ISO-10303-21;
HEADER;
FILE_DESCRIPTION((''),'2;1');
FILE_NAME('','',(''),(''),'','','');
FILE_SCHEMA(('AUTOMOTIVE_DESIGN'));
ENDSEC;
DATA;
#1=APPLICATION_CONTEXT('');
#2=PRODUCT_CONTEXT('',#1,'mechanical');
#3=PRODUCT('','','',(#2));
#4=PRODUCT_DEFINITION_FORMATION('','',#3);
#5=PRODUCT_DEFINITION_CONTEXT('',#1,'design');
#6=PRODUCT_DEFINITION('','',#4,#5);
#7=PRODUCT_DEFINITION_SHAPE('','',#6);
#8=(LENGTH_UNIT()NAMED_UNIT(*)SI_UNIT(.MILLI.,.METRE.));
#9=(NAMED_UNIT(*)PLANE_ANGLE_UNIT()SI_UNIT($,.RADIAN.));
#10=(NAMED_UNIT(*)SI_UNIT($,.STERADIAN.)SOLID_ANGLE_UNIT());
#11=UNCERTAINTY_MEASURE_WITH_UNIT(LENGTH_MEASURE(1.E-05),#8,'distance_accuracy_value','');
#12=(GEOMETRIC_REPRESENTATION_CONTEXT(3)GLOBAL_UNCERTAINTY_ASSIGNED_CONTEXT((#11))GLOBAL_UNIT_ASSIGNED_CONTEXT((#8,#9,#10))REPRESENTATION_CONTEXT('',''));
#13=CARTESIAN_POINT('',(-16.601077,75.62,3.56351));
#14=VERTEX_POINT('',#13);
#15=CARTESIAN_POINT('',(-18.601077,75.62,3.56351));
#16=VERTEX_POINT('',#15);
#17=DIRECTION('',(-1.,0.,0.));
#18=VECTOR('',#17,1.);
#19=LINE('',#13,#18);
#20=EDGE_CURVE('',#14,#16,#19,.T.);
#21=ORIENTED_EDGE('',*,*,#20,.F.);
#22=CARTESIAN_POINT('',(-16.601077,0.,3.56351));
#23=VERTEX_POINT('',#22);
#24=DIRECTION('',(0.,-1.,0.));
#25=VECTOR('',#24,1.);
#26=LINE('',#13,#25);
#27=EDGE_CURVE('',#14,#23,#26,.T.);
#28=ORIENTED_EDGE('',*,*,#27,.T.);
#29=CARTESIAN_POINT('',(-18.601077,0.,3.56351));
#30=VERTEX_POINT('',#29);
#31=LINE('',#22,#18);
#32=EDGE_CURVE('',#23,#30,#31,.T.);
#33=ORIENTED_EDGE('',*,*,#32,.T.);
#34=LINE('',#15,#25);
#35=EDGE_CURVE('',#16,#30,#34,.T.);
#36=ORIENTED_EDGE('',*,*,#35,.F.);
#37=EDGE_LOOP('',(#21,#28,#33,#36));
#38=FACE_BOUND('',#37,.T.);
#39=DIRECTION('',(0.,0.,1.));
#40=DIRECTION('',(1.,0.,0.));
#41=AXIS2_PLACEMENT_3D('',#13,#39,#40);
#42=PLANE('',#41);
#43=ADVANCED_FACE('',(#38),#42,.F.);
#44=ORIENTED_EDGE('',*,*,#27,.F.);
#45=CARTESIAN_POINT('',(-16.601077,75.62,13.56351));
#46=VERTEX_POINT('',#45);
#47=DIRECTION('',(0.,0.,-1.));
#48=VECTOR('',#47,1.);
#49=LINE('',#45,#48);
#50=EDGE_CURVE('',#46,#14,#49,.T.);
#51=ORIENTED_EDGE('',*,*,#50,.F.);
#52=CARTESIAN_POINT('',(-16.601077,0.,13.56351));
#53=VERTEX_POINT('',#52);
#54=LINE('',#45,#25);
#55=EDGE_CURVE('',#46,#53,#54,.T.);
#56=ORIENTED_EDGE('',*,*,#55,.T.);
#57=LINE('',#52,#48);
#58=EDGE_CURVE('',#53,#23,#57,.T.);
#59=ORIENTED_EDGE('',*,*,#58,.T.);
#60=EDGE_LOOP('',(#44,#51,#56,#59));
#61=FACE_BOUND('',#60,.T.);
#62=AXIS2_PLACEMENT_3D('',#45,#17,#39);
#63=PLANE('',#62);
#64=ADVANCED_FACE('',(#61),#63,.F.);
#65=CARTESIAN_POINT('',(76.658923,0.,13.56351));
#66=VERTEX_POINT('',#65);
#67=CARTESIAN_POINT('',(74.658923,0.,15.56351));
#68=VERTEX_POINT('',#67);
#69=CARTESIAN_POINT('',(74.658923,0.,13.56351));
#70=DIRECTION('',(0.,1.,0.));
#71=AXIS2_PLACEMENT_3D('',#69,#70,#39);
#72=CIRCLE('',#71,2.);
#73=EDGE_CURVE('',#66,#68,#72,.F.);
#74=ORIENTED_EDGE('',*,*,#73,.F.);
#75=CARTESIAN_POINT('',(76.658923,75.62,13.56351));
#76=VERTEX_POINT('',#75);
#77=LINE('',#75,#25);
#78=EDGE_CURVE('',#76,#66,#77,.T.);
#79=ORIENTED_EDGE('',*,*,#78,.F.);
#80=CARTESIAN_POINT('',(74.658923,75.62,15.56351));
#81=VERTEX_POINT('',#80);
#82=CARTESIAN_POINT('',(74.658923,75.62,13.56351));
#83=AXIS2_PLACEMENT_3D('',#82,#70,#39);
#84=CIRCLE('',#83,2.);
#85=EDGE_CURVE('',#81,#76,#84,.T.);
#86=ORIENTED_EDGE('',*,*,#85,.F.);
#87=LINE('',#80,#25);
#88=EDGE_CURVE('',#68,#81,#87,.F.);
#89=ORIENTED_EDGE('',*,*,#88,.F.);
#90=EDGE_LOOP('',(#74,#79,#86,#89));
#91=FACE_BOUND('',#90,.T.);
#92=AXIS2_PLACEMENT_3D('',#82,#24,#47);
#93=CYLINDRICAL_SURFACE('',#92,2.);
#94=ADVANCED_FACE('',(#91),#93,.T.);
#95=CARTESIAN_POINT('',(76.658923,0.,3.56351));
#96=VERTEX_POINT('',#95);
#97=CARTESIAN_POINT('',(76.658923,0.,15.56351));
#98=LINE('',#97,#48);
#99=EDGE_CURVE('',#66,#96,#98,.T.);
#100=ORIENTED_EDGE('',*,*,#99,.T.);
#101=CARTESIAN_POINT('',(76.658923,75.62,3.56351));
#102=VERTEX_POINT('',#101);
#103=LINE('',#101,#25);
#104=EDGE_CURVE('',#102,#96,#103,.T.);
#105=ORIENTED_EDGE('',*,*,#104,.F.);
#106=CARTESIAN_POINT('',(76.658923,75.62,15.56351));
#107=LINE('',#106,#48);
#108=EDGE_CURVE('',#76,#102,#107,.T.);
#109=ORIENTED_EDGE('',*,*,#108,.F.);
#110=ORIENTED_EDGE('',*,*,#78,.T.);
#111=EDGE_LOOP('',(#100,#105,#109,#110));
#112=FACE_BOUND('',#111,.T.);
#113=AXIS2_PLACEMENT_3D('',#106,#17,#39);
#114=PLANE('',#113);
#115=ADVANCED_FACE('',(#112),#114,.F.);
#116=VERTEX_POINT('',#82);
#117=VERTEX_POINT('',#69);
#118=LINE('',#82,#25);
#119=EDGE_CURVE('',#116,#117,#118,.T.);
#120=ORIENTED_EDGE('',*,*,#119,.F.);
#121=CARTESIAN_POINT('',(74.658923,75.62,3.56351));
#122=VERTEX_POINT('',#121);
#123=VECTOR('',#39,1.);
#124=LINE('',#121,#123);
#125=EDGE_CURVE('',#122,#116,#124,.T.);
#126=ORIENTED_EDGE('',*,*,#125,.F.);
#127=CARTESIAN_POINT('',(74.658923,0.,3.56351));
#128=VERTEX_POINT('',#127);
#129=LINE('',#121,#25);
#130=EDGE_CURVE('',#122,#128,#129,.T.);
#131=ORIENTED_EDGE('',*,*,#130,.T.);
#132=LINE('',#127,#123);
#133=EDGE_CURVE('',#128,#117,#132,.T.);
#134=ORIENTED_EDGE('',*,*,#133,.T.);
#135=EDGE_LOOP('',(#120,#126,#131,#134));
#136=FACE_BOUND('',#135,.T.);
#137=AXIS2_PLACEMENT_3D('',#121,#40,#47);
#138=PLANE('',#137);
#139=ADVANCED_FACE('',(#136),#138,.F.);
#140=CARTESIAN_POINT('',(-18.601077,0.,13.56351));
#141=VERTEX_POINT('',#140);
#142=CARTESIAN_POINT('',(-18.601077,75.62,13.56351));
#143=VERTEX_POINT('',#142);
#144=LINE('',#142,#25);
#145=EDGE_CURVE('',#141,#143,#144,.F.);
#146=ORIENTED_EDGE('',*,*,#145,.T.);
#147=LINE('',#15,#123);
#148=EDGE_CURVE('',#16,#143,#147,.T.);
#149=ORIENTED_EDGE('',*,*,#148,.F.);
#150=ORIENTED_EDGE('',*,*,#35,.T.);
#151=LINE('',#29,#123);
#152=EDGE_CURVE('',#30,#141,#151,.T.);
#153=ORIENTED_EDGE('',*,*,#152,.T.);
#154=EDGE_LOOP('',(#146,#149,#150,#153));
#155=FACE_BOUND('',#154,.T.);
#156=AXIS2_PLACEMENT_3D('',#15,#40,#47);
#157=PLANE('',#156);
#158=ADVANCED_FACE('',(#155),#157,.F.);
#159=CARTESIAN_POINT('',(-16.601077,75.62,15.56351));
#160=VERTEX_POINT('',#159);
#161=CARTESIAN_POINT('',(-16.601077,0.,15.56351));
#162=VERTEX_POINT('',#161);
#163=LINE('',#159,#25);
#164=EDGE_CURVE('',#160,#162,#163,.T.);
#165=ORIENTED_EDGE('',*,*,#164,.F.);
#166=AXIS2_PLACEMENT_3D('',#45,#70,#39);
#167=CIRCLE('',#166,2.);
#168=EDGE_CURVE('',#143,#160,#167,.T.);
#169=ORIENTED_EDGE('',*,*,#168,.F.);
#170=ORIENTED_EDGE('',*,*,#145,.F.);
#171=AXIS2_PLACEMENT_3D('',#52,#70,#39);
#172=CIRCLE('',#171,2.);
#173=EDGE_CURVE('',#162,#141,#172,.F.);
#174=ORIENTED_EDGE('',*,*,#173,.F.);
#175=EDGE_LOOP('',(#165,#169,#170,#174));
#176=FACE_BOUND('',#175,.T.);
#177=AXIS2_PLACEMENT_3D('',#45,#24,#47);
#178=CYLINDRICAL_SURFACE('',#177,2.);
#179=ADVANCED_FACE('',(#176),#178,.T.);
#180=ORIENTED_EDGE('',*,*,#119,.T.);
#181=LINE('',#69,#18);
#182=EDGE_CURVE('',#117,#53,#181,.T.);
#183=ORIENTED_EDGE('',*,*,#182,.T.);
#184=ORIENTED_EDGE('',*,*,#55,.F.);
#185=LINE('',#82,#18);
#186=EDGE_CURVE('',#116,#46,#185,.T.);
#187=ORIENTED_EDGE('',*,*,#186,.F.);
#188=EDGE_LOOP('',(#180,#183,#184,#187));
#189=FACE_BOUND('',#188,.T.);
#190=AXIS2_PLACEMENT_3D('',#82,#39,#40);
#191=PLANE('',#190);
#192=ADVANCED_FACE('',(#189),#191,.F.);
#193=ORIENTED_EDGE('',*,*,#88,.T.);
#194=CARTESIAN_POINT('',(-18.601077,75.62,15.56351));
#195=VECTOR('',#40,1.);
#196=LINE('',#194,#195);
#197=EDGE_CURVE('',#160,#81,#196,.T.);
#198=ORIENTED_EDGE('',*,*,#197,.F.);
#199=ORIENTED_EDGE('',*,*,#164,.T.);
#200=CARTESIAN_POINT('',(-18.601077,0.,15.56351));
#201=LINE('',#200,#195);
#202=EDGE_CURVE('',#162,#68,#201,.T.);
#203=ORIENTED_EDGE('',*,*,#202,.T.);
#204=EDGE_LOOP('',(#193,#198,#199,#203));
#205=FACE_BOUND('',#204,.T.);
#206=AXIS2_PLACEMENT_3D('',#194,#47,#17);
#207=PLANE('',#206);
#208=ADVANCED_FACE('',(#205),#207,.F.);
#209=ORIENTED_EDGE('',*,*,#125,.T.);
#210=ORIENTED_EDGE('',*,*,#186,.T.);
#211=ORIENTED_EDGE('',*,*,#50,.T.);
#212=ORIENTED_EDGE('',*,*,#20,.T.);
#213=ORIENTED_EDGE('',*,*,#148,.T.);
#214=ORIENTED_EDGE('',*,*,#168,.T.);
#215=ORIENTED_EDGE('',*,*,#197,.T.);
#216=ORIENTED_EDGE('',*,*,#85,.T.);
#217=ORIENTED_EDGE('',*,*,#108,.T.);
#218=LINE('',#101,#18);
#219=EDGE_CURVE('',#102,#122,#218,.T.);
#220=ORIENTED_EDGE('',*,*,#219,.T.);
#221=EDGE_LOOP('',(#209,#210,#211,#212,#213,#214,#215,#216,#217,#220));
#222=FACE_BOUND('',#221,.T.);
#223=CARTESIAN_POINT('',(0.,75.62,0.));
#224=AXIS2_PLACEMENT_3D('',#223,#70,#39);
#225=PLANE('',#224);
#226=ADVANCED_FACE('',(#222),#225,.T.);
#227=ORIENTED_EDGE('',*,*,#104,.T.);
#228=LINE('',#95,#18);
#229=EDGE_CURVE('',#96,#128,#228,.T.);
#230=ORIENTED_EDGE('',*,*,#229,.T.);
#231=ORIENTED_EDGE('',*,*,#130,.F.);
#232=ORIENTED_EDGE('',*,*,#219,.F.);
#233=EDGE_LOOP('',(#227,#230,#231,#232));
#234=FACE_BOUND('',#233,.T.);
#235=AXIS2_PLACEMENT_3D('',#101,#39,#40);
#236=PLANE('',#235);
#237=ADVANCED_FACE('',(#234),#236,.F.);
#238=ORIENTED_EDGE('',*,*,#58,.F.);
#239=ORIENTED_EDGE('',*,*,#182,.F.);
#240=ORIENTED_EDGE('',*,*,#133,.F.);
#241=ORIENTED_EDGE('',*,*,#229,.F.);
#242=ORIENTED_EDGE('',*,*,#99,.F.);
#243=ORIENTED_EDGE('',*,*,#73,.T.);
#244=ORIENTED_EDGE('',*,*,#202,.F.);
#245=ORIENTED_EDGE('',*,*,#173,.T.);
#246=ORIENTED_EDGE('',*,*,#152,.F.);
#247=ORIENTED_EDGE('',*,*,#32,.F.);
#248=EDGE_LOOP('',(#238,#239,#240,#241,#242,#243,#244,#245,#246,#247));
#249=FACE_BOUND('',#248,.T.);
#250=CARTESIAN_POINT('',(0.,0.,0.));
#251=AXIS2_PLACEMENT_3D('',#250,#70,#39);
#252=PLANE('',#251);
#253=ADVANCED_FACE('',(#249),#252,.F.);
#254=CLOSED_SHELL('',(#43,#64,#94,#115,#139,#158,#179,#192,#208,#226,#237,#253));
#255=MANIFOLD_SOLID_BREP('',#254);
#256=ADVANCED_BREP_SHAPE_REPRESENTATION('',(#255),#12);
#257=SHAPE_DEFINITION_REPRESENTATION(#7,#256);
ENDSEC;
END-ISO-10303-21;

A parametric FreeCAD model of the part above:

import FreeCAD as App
import Part
import Sketcher

V = App.Vector


def edges_at(feature, points):
    """Names of the edges that pass closest to the given points."""
    edges = feature.Shape.Edges
    near = lambda p: min(range(len(edges)), key=lambda i: edges[i].distToShape(Part.Vertex(*p))[0])
    return sorted({f"Edge{near(p) + 1}" for p in points})

doc = App.newDocument("Part")
body = doc.addObject("PartDesign::Body", "Body")

# Sketch on XZ plane
sketch1 = body.newObject("Sketcher::SketchObject", "Sketch")
sketch1.AttachmentSupport = (doc.getObject("XZ_Plane"), [""])
sketch1.MapMode = "FlatFace"
sketch1.addGeometry(Part.LineSegment(V(-18.6, 3.6, 0), V(-18.6, 15.6, 0)), False)
sketch1.addGeometry(Part.LineSegment(V(-18.6, 15.6, 0), V(76.7, 15.6, 0)), False)
sketch1.addGeometry(Part.LineSegment(V(76.7, 15.6, 0), V(76.7, 3.6, 0)), False)
sketch1.addGeometry(Part.LineSegment(V(76.7, 3.6, 0), V(74.7, 3.6, 0)), False)
sketch1.addGeometry(Part.LineSegment(V(74.7, 3.6, 0), V(74.7, 13.6, 0)), False)
sketch1.addGeometry(Part.LineSegment(V(74.7, 13.6, 0), V(-16.6, 13.6, 0)), False)
sketch1.addGeometry(Part.LineSegment(V(-16.6, 13.6, 0), V(-16.6, 3.6, 0)), False)
sketch1.addGeometry(Part.LineSegment(V(-16.6, 3.6, 0), V(-18.6, 3.6, 0)), False)
sketch1.addConstraint(Sketcher.Constraint("Coincident", 0, 2, 1, 1))
sketch1.addConstraint(Sketcher.Constraint("Coincident", 1, 2, 2, 1))
sketch1.addConstraint(Sketcher.Constraint("Coincident", 2, 2, 3, 1))
sketch1.addConstraint(Sketcher.Constraint("Coincident", 3, 2, 4, 1))
sketch1.addConstraint(Sketcher.Constraint("Coincident", 4, 2, 5, 1))
sketch1.addConstraint(Sketcher.Constraint("Coincident", 5, 2, 6, 1))
sketch1.addConstraint(Sketcher.Constraint("Coincident", 6, 2, 7, 1))
sketch1.addConstraint(Sketcher.Constraint("Coincident", 7, 2, 0, 1))
sketch1.addConstraint(Sketcher.Constraint("Vertical", 0))
sketch1.addConstraint(Sketcher.Constraint("Horizontal", 1))
sketch1.addConstraint(Sketcher.Constraint("Vertical", 2))
sketch1.addConstraint(Sketcher.Constraint("Horizontal", 3))
sketch1.addConstraint(Sketcher.Constraint("Vertical", 4))
sketch1.addConstraint(Sketcher.Constraint("Horizontal", 5))
sketch1.addConstraint(Sketcher.Constraint("Vertical", 6))
sketch1.addConstraint(Sketcher.Constraint("Horizontal", 7))
sketch1.addConstraint(Sketcher.Constraint("Horizontal", 3, 2, 6, 2))
sketch1.addConstraint(Sketcher.Constraint("Equal", 3, 7))
sketch1.addConstraint(Sketcher.Constraint("DistanceX", 3, 2, 3, 1, 2.0))
sketch1.addConstraint(Sketcher.Constraint("DistanceY", 0, 1, 0, 2, 12.0))
sketch1.addConstraint(Sketcher.Constraint("DistanceY", 4, 1, 4, 2, 10.0))
sketch1.addConstraint(Sketcher.Constraint("DistanceX", 1, 1, 1, 2, 95.26))
sketch1.addConstraint(Sketcher.Constraint("DistanceY", -1, 1, 0, 2, 15.56351))
sketch1.addConstraint(Sketcher.Constraint("DistanceX", 0, 2, -1, 1, 18.601077))
pad1 = body.newObject("PartDesign::Pad", "Pad")
pad1.Profile = sketch1
pad1.Length = 75.62
pad1.Reversed = True
doc.recompute()

fillet = body.newObject("PartDesign::Fillet", "Fillet")
fillet.Base = (pad1, edges_at(pad1, [(76.659, 37.81, 15.564), (-18.601, 37.81, 15.564)]))
fillet.Radius = 2

doc.recompute()
